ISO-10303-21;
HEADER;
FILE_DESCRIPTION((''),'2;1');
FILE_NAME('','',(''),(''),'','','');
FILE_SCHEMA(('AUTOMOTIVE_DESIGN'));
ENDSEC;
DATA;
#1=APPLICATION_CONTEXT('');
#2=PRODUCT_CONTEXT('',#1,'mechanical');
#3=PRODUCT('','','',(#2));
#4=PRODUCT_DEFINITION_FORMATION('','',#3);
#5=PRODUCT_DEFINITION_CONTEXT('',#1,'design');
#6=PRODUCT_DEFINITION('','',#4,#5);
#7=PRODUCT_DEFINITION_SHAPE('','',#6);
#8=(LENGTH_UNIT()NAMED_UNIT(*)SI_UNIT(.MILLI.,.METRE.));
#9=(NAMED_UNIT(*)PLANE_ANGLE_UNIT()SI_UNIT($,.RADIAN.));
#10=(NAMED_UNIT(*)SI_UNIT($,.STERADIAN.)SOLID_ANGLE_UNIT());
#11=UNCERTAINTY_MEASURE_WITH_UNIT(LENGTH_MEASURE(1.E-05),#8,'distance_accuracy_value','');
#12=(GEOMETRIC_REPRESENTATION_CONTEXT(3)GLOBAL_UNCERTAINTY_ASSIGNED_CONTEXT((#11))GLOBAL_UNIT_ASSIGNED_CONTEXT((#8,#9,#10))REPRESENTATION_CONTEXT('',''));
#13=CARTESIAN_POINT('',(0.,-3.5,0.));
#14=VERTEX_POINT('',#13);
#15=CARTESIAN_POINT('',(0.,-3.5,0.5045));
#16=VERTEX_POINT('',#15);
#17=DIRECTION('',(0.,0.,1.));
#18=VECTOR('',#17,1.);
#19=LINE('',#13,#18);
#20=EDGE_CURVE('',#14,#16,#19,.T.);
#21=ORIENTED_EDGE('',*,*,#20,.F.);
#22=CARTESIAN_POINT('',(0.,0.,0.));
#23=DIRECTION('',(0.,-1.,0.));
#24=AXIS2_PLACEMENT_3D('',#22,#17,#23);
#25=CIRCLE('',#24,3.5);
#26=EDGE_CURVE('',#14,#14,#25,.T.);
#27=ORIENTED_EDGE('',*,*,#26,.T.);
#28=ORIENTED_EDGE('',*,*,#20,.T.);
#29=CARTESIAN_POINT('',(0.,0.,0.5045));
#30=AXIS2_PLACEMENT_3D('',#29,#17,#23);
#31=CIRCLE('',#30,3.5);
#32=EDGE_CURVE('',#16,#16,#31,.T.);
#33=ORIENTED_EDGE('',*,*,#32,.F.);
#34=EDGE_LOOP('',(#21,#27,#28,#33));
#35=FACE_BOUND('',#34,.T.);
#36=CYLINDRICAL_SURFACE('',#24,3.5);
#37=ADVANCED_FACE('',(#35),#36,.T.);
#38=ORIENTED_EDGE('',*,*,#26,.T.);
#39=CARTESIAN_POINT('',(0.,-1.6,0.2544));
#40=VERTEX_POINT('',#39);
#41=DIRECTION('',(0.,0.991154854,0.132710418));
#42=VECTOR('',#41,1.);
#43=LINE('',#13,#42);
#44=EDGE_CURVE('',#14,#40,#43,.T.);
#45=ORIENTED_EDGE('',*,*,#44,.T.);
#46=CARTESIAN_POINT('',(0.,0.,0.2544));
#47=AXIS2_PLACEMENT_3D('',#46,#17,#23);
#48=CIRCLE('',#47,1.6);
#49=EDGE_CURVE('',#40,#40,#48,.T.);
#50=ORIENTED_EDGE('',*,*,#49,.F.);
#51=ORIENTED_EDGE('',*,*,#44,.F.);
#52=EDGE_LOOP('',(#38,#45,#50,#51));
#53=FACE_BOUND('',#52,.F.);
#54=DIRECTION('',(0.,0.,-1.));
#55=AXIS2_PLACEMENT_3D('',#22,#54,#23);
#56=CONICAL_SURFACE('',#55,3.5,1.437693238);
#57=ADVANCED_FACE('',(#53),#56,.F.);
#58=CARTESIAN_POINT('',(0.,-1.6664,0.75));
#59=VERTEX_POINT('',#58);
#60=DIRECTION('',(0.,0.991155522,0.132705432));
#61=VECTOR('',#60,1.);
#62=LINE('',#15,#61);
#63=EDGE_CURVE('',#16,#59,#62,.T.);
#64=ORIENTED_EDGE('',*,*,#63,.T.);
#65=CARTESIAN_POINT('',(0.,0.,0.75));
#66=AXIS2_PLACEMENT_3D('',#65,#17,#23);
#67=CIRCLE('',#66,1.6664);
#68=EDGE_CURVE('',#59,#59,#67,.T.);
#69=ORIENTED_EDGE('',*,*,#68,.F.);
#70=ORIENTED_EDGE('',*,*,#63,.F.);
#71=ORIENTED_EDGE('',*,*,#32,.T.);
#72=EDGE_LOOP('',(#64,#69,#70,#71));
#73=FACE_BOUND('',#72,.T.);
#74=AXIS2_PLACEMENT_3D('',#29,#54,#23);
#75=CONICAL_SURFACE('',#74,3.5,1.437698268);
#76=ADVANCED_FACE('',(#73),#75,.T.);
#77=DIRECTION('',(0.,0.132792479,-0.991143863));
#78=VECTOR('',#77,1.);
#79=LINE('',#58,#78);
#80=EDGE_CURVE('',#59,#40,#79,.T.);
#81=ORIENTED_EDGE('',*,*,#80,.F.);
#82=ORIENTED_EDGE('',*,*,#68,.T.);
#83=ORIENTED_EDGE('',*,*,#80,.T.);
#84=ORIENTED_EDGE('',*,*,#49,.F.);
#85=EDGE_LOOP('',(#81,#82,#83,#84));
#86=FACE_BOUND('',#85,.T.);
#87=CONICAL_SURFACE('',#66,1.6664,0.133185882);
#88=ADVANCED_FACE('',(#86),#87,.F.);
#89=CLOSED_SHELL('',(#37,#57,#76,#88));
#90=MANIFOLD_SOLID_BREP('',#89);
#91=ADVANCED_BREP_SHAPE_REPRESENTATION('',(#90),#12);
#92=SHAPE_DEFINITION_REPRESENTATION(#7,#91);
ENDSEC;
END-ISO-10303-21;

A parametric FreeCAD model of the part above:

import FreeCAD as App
import Part
import Sketcher

doc = App.newDocument("Part")
body = doc.addObject("PartDesign::Body", "Body")

sketch1 = body.newObject("Sketcher::SketchObject", "Sketch")
sketch1.AttachmentSupport = (doc.getObject("YZ_Plane"), [""])
sketch1.MapMode = "FlatFace"
sketch1.addGeometry([
    Part.LineSegment(App.Vector(-3.5, 0.5, 0), App.Vector(-3.5, 0, 0)),
    Part.LineSegment(App.Vector(-3.5, 0, 0), App.Vector(-1.6, 0.3, 0)),
    Part.LineSegment(App.Vector(-1.6, 0.3, 0), App.Vector(-1.7, 0.8, 0)),
    Part.LineSegment(App.Vector(-1.7, 0.8, 0), App.Vector(-3.5, 0.5, 0)),
], False)
sketch1.addConstraint([
    Sketcher.Constraint("Coincident", 0, 2, 1, 1),
    Sketcher.Constraint("Coincident", 1, 2, 2, 1),
    Sketcher.Constraint("Coincident", 2, 2, 3, 1),
    Sketcher.Constraint("Coincident", 3, 2, 0, 1),
    Sketcher.Constraint("Vertical", 0),
    Sketcher.Constraint("PointOnObject", 0, 2, -1),
    Sketcher.Constraint("Perpendicular", 1, 2),
    Sketcher.Constraint("Perpendicular", 2, 3),
    Sketcher.Constraint("Distance", 2, 0.5),
    Sketcher.Constraint("DistanceX", 0, 2, -1, 1, 3.5),
    Sketcher.Constraint("DistanceX", 1, 2, -1, 1, 1.6),
    Sketcher.Constraint("DistanceY", -1, 1, 2, 2, 0.75),
])
revolution = body.newObject("PartDesign::Revolution", "Revolution")
revolution.Profile = sketch1
revolution.ReferenceAxis = (sketch1, ["V_Axis"])
revolution.Angle = 360

doc.recompute()
